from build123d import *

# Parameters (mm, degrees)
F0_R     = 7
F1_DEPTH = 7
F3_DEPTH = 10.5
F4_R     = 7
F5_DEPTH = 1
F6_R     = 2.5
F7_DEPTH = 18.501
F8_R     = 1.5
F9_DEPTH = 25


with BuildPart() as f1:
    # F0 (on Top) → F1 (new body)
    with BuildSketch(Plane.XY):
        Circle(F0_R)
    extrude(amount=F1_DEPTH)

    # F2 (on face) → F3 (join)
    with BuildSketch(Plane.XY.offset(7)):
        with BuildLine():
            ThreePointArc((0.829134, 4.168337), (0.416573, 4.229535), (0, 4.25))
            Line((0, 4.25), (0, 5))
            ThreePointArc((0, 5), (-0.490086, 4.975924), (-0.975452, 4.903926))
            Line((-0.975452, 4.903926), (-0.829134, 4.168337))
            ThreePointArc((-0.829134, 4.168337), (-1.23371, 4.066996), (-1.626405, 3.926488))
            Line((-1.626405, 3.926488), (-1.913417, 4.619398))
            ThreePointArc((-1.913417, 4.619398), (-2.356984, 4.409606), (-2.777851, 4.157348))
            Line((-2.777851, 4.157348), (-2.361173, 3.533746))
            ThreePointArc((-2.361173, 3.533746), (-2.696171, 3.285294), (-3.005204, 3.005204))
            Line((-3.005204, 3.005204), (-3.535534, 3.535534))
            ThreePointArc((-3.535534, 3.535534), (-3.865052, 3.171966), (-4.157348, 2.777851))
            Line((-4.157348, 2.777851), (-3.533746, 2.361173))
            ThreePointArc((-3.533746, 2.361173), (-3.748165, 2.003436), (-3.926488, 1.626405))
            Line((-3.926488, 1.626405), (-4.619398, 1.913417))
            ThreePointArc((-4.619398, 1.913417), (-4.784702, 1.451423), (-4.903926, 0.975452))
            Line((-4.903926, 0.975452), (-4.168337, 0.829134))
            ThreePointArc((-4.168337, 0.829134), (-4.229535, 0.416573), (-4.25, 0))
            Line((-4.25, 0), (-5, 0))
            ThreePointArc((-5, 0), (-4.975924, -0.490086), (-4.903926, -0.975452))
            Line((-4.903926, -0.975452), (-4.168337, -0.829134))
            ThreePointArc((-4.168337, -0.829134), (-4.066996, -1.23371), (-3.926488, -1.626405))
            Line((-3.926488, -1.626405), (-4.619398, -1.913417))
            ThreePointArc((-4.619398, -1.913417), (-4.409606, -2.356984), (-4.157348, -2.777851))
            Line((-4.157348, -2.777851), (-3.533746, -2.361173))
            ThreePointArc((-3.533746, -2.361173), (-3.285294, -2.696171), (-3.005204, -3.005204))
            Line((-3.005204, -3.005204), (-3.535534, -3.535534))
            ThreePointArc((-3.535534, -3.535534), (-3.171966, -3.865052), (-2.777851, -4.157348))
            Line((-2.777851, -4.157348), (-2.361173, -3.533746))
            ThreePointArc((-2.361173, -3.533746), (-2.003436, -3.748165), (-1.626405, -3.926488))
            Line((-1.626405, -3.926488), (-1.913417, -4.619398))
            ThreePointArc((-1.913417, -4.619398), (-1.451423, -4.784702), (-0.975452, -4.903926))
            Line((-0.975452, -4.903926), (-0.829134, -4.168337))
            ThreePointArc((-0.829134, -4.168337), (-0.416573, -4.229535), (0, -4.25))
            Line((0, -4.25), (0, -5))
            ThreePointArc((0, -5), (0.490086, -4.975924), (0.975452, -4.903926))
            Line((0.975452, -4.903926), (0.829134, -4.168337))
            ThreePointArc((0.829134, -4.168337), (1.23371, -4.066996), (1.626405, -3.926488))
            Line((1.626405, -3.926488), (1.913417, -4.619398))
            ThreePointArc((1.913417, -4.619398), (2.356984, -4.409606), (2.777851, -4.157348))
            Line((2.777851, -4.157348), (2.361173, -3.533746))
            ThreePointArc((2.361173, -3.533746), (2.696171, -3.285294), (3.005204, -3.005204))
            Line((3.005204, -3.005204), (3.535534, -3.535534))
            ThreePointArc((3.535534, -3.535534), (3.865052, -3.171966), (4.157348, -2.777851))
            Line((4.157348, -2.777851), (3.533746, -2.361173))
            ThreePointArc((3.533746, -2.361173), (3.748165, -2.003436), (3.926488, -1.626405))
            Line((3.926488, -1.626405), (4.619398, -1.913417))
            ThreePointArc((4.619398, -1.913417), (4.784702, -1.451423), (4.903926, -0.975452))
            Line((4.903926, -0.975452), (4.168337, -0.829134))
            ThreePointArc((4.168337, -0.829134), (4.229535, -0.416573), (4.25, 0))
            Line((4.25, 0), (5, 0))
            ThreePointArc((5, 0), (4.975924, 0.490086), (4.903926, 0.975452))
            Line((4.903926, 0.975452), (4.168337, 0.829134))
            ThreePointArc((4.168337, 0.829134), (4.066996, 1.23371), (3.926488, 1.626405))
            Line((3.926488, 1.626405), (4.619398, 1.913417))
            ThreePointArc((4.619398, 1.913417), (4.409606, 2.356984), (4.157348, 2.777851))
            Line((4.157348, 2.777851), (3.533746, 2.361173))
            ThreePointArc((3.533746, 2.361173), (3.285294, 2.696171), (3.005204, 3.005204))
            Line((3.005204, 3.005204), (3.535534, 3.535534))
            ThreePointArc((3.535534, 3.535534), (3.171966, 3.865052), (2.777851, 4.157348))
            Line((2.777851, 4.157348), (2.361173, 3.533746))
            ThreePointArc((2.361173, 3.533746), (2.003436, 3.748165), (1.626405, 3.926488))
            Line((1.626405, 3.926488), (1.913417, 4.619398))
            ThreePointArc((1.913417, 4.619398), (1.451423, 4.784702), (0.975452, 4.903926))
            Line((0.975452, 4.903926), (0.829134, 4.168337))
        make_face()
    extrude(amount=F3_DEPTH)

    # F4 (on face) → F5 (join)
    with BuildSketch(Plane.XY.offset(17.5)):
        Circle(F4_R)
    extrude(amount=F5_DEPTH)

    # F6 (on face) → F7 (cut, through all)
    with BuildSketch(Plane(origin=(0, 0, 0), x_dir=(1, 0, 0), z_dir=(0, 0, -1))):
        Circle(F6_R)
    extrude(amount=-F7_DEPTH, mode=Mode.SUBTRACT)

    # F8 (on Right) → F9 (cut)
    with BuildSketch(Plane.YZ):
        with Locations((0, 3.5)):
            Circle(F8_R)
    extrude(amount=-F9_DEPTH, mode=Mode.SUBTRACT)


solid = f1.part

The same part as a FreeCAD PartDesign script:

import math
import FreeCAD as App
import Part
import Sketcher
Q = App.Units.Quantity

doc = App.newDocument("Part")
body = doc.addObject("PartDesign::Body", "Body")

# Sketch on XY plane
sketch1 = body.newObject("Sketcher::SketchObject", "Sketch")
sketch1.AttachmentSupport = (doc.getObject("XY_Plane"), [""])
sketch1.MapMode = "FlatFace"
sketch1.addGeometry(Part.Circle(App.Vector(0, 0, 0), App.Vector(0, 0, 1), 7), False)
sketch1.addConstraint([
    Sketcher.Constraint("Coincident", 0, 3, -1, 1),
    Sketcher.Constraint("Diameter", 0, 14.0),
])
pad1 = body.newObject("PartDesign::Pad", "Pad")
pad1.Profile = sketch1
pad1.Length = 7

# Sketch on XY plane
sketch2 = body.newObject("Sketcher::SketchObject", "Sketch001")
sketch2.AttachmentSupport = (doc.getObject("XY_Plane"), [""])
sketch2.MapMode = "FlatFace"
sketch2.AttachmentOffset = App.Placement(App.Vector(0, 0, 7), App.Rotation())
sketch2.addGeometry([
    Part.ArcOfCircle(Part.Circle(App.Vector(0.000001, 0.000027, 0), App.Vector(0, 0, 1), 4.249973), math.radians(78.749933), math.radians(90.000008)),  # 0
    Part.LineSegment(App.Vector(0, 4.25, 0), App.Vector(0, 5, 0)),  # 1
    Part.ArcOfCircle(Part.Circle(App.Vector(-0.00001, 0.000114, 0), App.Vector(0, 0, 1), 4.999886), math.radians(89.999889), math.radians(101.250153)),  # 2
    Part.LineSegment(App.Vector(-0.975452, 4.903926, 0), App.Vector(-0.829134, 4.168337, 0)),  # 3
    Part.ArcOfCircle(Part.Circle(App.Vector(0.000012, -0.000049, 0), App.Vector(0, 0, 1), 4.25005), math.radians(101.250031), math.radians(112.499901)),  # 4
    Part.LineSegment(App.Vector(-1.626405, 3.926488, 0), App.Vector(-1.913417, 4.619398, 0)),  # 5
    Part.ArcOfCircle(Part.Circle(App.Vector(0.00002, -0.000034, 0), App.Vector(0, 0, 1), 5.000039), math.radians(112.500064), math.radians(123.749978)),  # 6
    Part.LineSegment(App.Vector(-2.777851, 4.157348, 0), App.Vector(-2.361173, 3.533746, 0)),  # 7
    Part.ArcOfCircle(Part.Circle(App.Vector(0.000087, -0.000109, 0), App.Vector(0, 0, 1), 4.250139), math.radians(123.75015), math.radians(134.999788)),  # 8
    Part.LineSegment(App.Vector(-3.005204, 3.005204, 0), App.Vector(-3.535534, 3.535534, 0)),  # 9
    Part.ArcOfCircle(Part.Circle(App.Vector(0.000076, -0.000061, 0), App.Vector(0, 0, 1), 5.000097), math.radians(135.000125), math.radians(146.249908)),  # 10
    Part.LineSegment(App.Vector(-4.157348, 2.777851, 0), App.Vector(-3.533746, 2.361173, 0)),  # 11
    Part.ArcOfCircle(Part.Circle(App.Vector(0.000071, -0.000039, 0), App.Vector(0, 0, 1), 4.25008), math.radians(146.250093), math.radians(157.499868)),  # 12
    Part.LineSegment(App.Vector(-3.926488, 1.626405, 0), App.Vector(-4.619398, 1.913417, 0)),  # 13
    Part.ArcOfCircle(Part.Circle(App.Vector(-0.000045, 0.000017, 0), App.Vector(0, 0, 1), 4.999953), math.radians(157.499983), math.radians(168.750081)),  # 14
    Part.LineSegment(App.Vector(-4.903926, 0.975452, 0), App.Vector(-4.168337, 0.829134, 0)),  # 15
    Part.ArcOfCircle(Part.Circle(App.Vector(-0.000027, 0.000001, 0), App.Vector(0, 0, 1), 4.249973), math.radians(168.749933), math.radians(180.000008)),  # 16
    Part.LineSegment(App.Vector(-4.25, 0, 0), App.Vector(-5, 0, 0)),  # 17
    Part.ArcOfCircle(Part.Circle(App.Vector(-0.000114, -0.00001, 0), App.Vector(0, 0, 1), 4.999886), math.radians(179.999889), math.radians(191.250153)),  # 18
    Part.LineSegment(App.Vector(-4.903926, -0.975452, 0), App.Vector(-4.168337, -0.829134, 0)),  # 19
    Part.ArcOfCircle(Part.Circle(App.Vector(0.000049, 0.000012, 0), App.Vector(0, 0, 1), 4.25005), math.radians(-168.749969), math.radians(-157.500099)),  # 20
    Part.LineSegment(App.Vector(-3.926488, -1.626405, 0), App.Vector(-4.619398, -1.913417, 0)),  # 21
    Part.ArcOfCircle(Part.Circle(App.Vector(0.000034, 0.00002, 0), App.Vector(0, 0, 1), 5.000039), math.radians(-157.499936), math.radians(-146.250022)),  # 22
    Part.LineSegment(App.Vector(-4.157348, -2.777851, 0), App.Vector(-3.533746, -2.361173, 0)),  # 23
    Part.ArcOfCircle(Part.Circle(App.Vector(0.000109, 0.000087, 0), App.Vector(0, 0, 1), 4.250139), math.radians(-146.24985), math.radians(-135.000212)),  # 24
    Part.LineSegment(App.Vector(-3.005204, -3.005204, 0), App.Vector(-3.535534, -3.535534, 0)),  # 25
    Part.ArcOfCircle(Part.Circle(App.Vector(0.000061, 0.000076, 0), App.Vector(0, 0, 1), 5.000097), math.radians(-134.999875), math.radians(-123.750092)),  # 26
    Part.LineSegment(App.Vector(-2.777851, -4.157348, 0), App.Vector(-2.361173, -3.533746, 0)),  # 27
    Part.ArcOfCircle(Part.Circle(App.Vector(0.000039, 0.000071, 0), App.Vector(0, 0, 1), 4.25008), math.radians(-123.749907), math.radians(-112.500132)),  # 28
    Part.LineSegment(App.Vector(-1.626405, -3.926488, 0), App.Vector(-1.913417, -4.619398, 0)),  # 29
    Part.ArcOfCircle(Part.Circle(App.Vector(-0.000017, -0.000045, 0), App.Vector(0, 0, 1), 4.999953), math.radians(-112.500017), math.radians(-101.249919)),  # 30
    Part.LineSegment(App.Vector(-0.975452, -4.903926, 0), App.Vector(-0.829134, -4.168337, 0)),  # 31
    Part.ArcOfCircle(Part.Circle(App.Vector(-0.000001, -0.000027, 0), App.Vector(0, 0, 1), 4.249973), math.radians(-101.250067), math.radians(-89.999992)),  # 32
    Part.LineSegment(App.Vector(0, -4.25, 0), App.Vector(0, -5, 0)),  # 33
    Part.ArcOfCircle(Part.Circle(App.Vector(0.00001, -0.000114, 0), App.Vector(0, 0, 1), 4.999886), math.radians(-90.000111), math.radians(-78.749847)),  # 34
    Part.LineSegment(App.Vector(0.975452, -4.903926, 0), App.Vector(0.829134, -4.168337, 0)),  # 35
    Part.ArcOfCircle(Part.Circle(App.Vector(-0.000012, 0.000049, 0), App.Vector(0, 0, 1), 4.25005), math.radians(-78.749969), math.radians(-67.500099)),  # 36
    Part.LineSegment(App.Vector(1.626405, -3.926488, 0), App.Vector(1.913417, -4.619398, 0)),  # 37
    Part.ArcOfCircle(Part.Circle(App.Vector(-0.00002, 0.000034, 0), App.Vector(0, 0, 1), 5.000039), math.radians(-67.499936), math.radians(-56.250022)),  # 38
    Part.LineSegment(App.Vector(2.777851, -4.157348, 0), App.Vector(2.361173, -3.533746, 0)),  # 39
    Part.ArcOfCircle(Part.Circle(App.Vector(-0.000087, 0.000109, 0), App.Vector(0, 0, 1), 4.250139), math.radians(-56.24985), math.radians(-45.000212)),  # 40
    Part.LineSegment(App.Vector(3.005204, -3.005204, 0), App.Vector(3.535534, -3.535534, 0)),  # 41
    Part.ArcOfCircle(Part.Circle(App.Vector(-0.000076, 0.000061, 0), App.Vector(0, 0, 1), 5.000097), math.radians(-44.999875), math.radians(-33.750092)),  # 42
    Part.LineSegment(App.Vector(4.157348, -2.777851, 0), App.Vector(3.533746, -2.361173, 0)),  # 43
    Part.ArcOfCircle(Part.Circle(App.Vector(-0.000071, 0.000039, 0), App.Vector(0, 0, 1), 4.25008), math.radians(-33.749907), math.radians(-22.500132)),  # 44
    Part.LineSegment(App.Vector(3.926488, -1.626405, 0), App.Vector(4.619398, -1.913417, 0)),  # 45
    Part.ArcOfCircle(Part.Circle(App.Vector(0.000045, -0.000017, 0), App.Vector(0, 0, 1), 4.999953), math.radians(-22.500017), math.radians(-11.249919)),  # 46
    Part.LineSegment(App.Vector(4.903926, -0.975452, 0), App.Vector(4.168337, -0.829134, 0)),  # 47
    Part.ArcOfCircle(Part.Circle(App.Vector(0.000027, -0.000001, 0), App.Vector(0, 0, 1), 4.249973), math.radians(-11.250067), math.radians(0.000008)),  # 48
    Part.LineSegment(App.Vector(4.25, 0, 0), App.Vector(5, 0, 0)),  # 49
    Part.ArcOfCircle(Part.Circle(App.Vector(0.000114, 0.00001, 0), App.Vector(0, 0, 1), 4.999886), math.radians(-0.000111), math.radians(11.250153)),  # 50
    Part.LineSegment(App.Vector(4.903926, 0.975452, 0), App.Vector(4.168337, 0.829134, 0)),  # 51
    Part.ArcOfCircle(Part.Circle(App.Vector(-0.000049, -0.000012, 0), App.Vector(0, 0, 1), 4.25005), math.radians(11.250031), math.radians(22.499901)),  # 52
    Part.LineSegment(App.Vector(3.926488, 1.626405, 0), App.Vector(4.619398, 1.913417, 0)),  # 53
    Part.ArcOfCircle(Part.Circle(App.Vector(-0.000034, -0.00002, 0), App.Vector(0, 0, 1), 5.000039), math.radians(22.500064), math.radians(33.749978)),  # 54
    Part.LineSegment(App.Vector(4.157348, 2.777851, 0), App.Vector(3.533746, 2.361173, 0)),  # 55
    Part.ArcOfCircle(Part.Circle(App.Vector(-0.000109, -0.000087, 0), App.Vector(0, 0, 1), 4.250139), math.radians(33.75015), math.radians(44.999788)),  # 56
    Part.LineSegment(App.Vector(3.005204, 3.005204, 0), App.Vector(3.535534, 3.535534, 0)),  # 57
    Part.ArcOfCircle(Part.Circle(App.Vector(-0.000061, -0.000076, 0), App.Vector(0, 0, 1), 5.000097), math.radians(45.000125), math.radians(56.249908)),  # 58
    Part.LineSegment(App.Vector(2.777851, 4.157348, 0), App.Vector(2.361173, 3.533746, 0)),  # 59
    Part.ArcOfCircle(Part.Circle(App.Vector(-0.000039, -0.000071, 0), App.Vector(0, 0, 1), 4.25008), math.radians(56.250093), math.radians(67.499868)),  # 60
    Part.LineSegment(App.Vector(1.626405, 3.926488, 0), App.Vector(1.913417, 4.619398, 0)),  # 61
    Part.ArcOfCircle(Part.Circle(App.Vector(0.000017, 0.000045, 0), App.Vector(0, 0, 1), 4.999953), math.radians(67.499983), math.radians(78.750081)),  # 62
    Part.LineSegment(App.Vector(0.975452, 4.903926, 0), App.Vector(0.829134, 4.168337, 0)),  # 63
], False)
sketch2.addConstraint([
    Sketcher.Constraint("Coincident", 0, 2, 1, 1),
    Sketcher.Constraint("Coincident", 1, 2, 2, 1),
    Sketcher.Constraint("Coincident", 2, 2, 3, 1),
    Sketcher.Constraint("Coincident", 3, 2, 4, 1),
    Sketcher.Constraint("Coincident", 4, 2, 5, 1),
    Sketcher.Constraint("Coincident", 5, 2, 6, 1),
    Sketcher.Constraint("Coincident", 6, 2, 7, 1),
    Sketcher.Constraint("Coincident", 7, 2, 8, 1),
    Sketcher.Constraint("Coincident", 8, 2, 9, 1),
    Sketcher.Constraint("Coincident", 9, 2, 10, 1),
    Sketcher.Constraint("Coincident", 10, 2, 11, 1),
    Sketcher.Constraint("Coincident", 11, 2, 12, 1),
    Sketcher.Constraint("Coincident", 12, 2, 13, 1),
    Sketcher.Constraint("Coincident", 13, 2, 14, 1),
    Sketcher.Constraint("Coincident", 14, 2, 15, 1),
    Sketcher.Constraint("Coincident", 15, 2, 16, 1),
    Sketcher.Constraint("Coincident", 16, 2, 17, 1),
    Sketcher.Constraint("Coincident", 17, 2, 18, 1),
    Sketcher.Constraint("Coincident", 18, 2, 19, 1),
    Sketcher.Constraint("Coincident", 19, 2, 20, 1),
    Sketcher.Constraint("Coincident", 20, 2, 21, 1),
    Sketcher.Constraint("Coincident", 21, 2, 22, 1),
    Sketcher.Constraint("Coincident", 22, 2, 23, 1),
    Sketcher.Constraint("Coincident", 23, 2, 24, 1),
    Sketcher.Constraint("Coincident", 24, 2, 25, 1),
    Sketcher.Constraint("Coincident", 25, 2, 26, 1),
    Sketcher.Constraint("Coincident", 26, 2, 27, 1),
    Sketcher.Constraint("Coincident", 27, 2, 28, 1),
    Sketcher.Constraint("Coincident", 28, 2, 29, 1),
    Sketcher.Constraint("Coincident", 29, 2, 30, 1),
    Sketcher.Constraint("Coincident", 30, 2, 31, 1),
    Sketcher.Constraint("Coincident", 31, 2, 32, 1),
    Sketcher.Constraint("Coincident", 32, 2, 33, 1),
    Sketcher.Constraint("Coincident", 33, 2, 34, 1),
    Sketcher.Constraint("Coincident", 34, 2, 35, 1),
    Sketcher.Constraint("Coincident", 35, 2, 36, 1),
    Sketcher.Constraint("Coincident", 36, 2, 37, 1),
    Sketcher.Constraint("Coincident", 37, 2, 38, 1),
    Sketcher.Constraint("Coincident", 38, 2, 39, 1),
    Sketcher.Constraint("Coincident", 39, 2, 40, 1),
    Sketcher.Constraint("Coincident", 40, 2, 41, 1),
    Sketcher.Constraint("Coincident", 41, 2, 42, 1),
    Sketcher.Constraint("Coincident", 42, 2, 43, 1),
    Sketcher.Constraint("Coincident", 43, 2, 44, 1),
    Sketcher.Constraint("Coincident", 44, 2, 45, 1),
    Sketcher.Constraint("Coincident", 45, 2, 46, 1),
    Sketcher.Constraint("Coincident", 46, 2, 47, 1),
    Sketcher.Constraint("Coincident", 47, 2, 48, 1),
    Sketcher.Constraint("Coincident", 48, 2, 49, 1),
    Sketcher.Constraint("Coincident", 49, 2, 50, 1),
    Sketcher.Constraint("Coincident", 50, 2, 51, 1),
    Sketcher.Constraint("Coincident", 51, 2, 52, 1),
    Sketcher.Constraint("Coincident", 52, 2, 53, 1),
    Sketcher.Constraint("Coincident", 53, 2, 54, 1),
    Sketcher.Constraint("Coincident", 54, 2, 55, 1),
    Sketcher.Constraint("Coincident", 55, 2, 56, 1),
    Sketcher.Constraint("Coincident", 56, 2, 57, 1),
    Sketcher.Constraint("Coincident", 57, 2, 58, 1),
    Sketcher.Constraint("Coincident", 58, 2, 59, 1),
    Sketcher.Constraint("Coincident", 59, 2, 60, 1),
    Sketcher.Constraint("Coincident", 60, 2, 61, 1),
    Sketcher.Constraint("Coincident", 61, 2, 62, 1),
    Sketcher.Constraint("Coincident", 62, 2, 63, 1),
    Sketcher.Constraint("Coincident", 63, 2, 0, 1),
    Sketcher.Constraint("Vertical", 1),
    Sketcher.Constraint("Horizontal", 17),
    Sketcher.Constraint("Vertical", 33),
    Sketcher.Constraint("Horizontal", 49),
    Sketcher.Constraint("Equal", 0, 16),
    Sketcher.Constraint("Equal", 2, 18),
    Sketcher.Constraint("Equal", 4, 20),
    Sketcher.Constraint("Equal", 6, 22),
    Sketcher.Constraint("Equal", 8, 24),
    Sketcher.Constraint("Equal", 10, 26),
    Sketcher.Constraint("Equal", 12, 28),
    Sketcher.Constraint("Equal", 14, 30),
    Sketcher.Constraint("Equal", 16, 32),
    Sketcher.Constraint("Equal", 18, 34),
    Sketcher.Constraint("Equal", 20, 36),
    Sketcher.Constraint("Equal", 22, 38),
    Sketcher.Constraint("Equal", 24, 40),
    Sketcher.Constraint("Equal", 26, 42),
    Sketcher.Constraint("Equal", 28, 44),
    Sketcher.Constraint("Equal", 30, 46),
    Sketcher.Constraint("Equal", 32, 48),
    Sketcher.Constraint("Equal", 34, 50),
    Sketcher.Constraint("Equal", 36, 52),
    Sketcher.Constraint("Equal", 38, 54),
    Sketcher.Constraint("Equal", 40, 56),
    Sketcher.Constraint("Equal", 42, 58),
    Sketcher.Constraint("Equal", 44, 60),
    Sketcher.Constraint("Equal", 46, 62),
    Sketcher.Constraint("Symmetric", 0, 3, 32, 3, -1, 1),
    Sketcher.Constraint("Symmetric", 2, 3, 34, 3, -1, 1),
    Sketcher.Constraint("Symmetric", 4, 3, 36, 3, -1, 1),
    Sketcher.Constraint("Symmetric", 6, 3, 38, 3, -1, 1),
    Sketcher.Constraint("Symmetric", 8, 3, 40, 3, -1, 1),
    Sketcher.Constraint("Symmetric", 10, 3, 42, 3, -1, 1),
    Sketcher.Constraint("Symmetric", 12, 3, 44, 3, -1, 1),
    Sketcher.Constraint("Symmetric", 14, 3, 46, 3, -1, 1),
    Sketcher.Constraint("Symmetric", 16, 3, 48, 3, -1, 1),
    Sketcher.Constraint("Symmetric", 18, 3, 50, 3, -1, 1),
    Sketcher.Constraint("Symmetric", 20, 3, 52, 3, -1, 1),
    Sketcher.Constraint("Symmetric", 22, 3, 54, 3, -1, 1),
    Sketcher.Constraint("Symmetric", 24, 3, 56, 3, -1, 1),
    Sketcher.Constraint("Symmetric", 26, 3, 58, 3, -1, 1),
    Sketcher.Constraint("Symmetric", 28, 3, 60, 3, -1, 1),
    Sketcher.Constraint("Symmetric", 30, 3, 62, 3, -1, 1),
    Sketcher.Constraint("Symmetric", 14, 3, 20, 3, -2),
    Sketcher.Constraint("Symmetric", 4, 3, 30, 3, -2),
    Sketcher.Constraint("Symmetric", 30, 2, 34, 2, -2),
    Sketcher.Constraint("Symmetric", 31, 2, 35, 2, -2),
    Sketcher.Constraint("Symmetric", 28, 2, 36, 2, -2),
    Sketcher.Constraint("Symmetric", 29, 2, 37, 2, -2),
    Sketcher.Constraint("Symmetric", 26, 2, 38, 2, -2),
    Sketcher.Constraint("Symmetric", 27, 2, 39, 2, -2),
    Sketcher.Constraint("Symmetric", 24, 2, 40, 2, -2),
    Sketcher.Constraint("Symmetric", 25, 2, 41, 2, -2),
    Sketcher.Constraint("Symmetric", 22, 2, 42, 2, -2),
    Sketcher.Constraint("Symmetric", 23, 2, 43, 2, -2),
    Sketcher.Constraint("Symmetric", 20, 2, 44, 2, -2),
    Sketcher.Constraint("Symmetric", 21, 2, 45, 2, -2),
    Sketcher.Constraint("Symmetric", 18, 2, 46, 2, -2),
    Sketcher.Constraint("Symmetric", 19, 2, 47, 2, -2),
    Sketcher.Constraint("PointOnObject", 0, 3, -2),
    Sketcher.Constraint("PointOnObject", 16, 3, -1),
    Sketcher.Constraint("PointOnObject", 0, 2, -2),
    Sketcher.Constraint("PointOnObject", 16, 2, -1),
    Sketcher.Constraint("PointOnObject", 32, 2, -2),
    Sketcher.Constraint("PointOnObject", 48, 2, -1),
    Sketcher.Constraint("Perpendicular", 3, 19),
    Sketcher.Constraint("Perpendicular", 5, 21),
    Sketcher.Constraint("Perpendicular", 7, 23),
    Sketcher.Constraint("Perpendicular", 9, 25),
    Sketcher.Constraint("Perpendicular", 11, 27),
    Sketcher.Constraint("Perpendicular", 13, 29),
    Sketcher.Constraint("Perpendicular", 15, 31),
    Sketcher.Constraint("Perpendicular", 19, 35),
    Sketcher.Constraint("Perpendicular", 21, 37),
    Sketcher.Constraint("Perpendicular", 23, 39),
    Sketcher.Constraint("Perpendicular", 25, 41),
    Sketcher.Constraint("Perpendicular", 35, 51),
    Sketcher.Constraint("Perpendicular", 37, 53),
    Sketcher.Constraint("Perpendicular", 39, 55),
    Sketcher.Constraint("Perpendicular", 41, 57),
    Sketcher.Constraint("Perpendicular", 43, 59),
    Sketcher.Constraint("Perpendicular", 45, 61),
    Sketcher.Constraint("Perpendicular", 47, 63),
    Sketcher.Constraint("Horizontal", 14, 2, 50, 2),
    Sketcher.Constraint("Horizontal", 12, 2, 52, 2),
    Sketcher.Constraint("Horizontal", 10, 2, 54, 2),
    Sketcher.Constraint("Horizontal", 8, 2, 56, 2),
    Sketcher.Constraint("Horizontal", 6, 2, 58, 2),
    Sketcher.Constraint("Horizontal", 4, 2, 60, 2),
    Sketcher.Constraint("Horizontal", 2, 2, 62, 2),
    Sketcher.Constraint("Vertical", 14, 2, 18, 2),
    Sketcher.Constraint("Vertical", 12, 2, 20, 2),
    Sketcher.Constraint("Vertical", 10, 2, 22, 2),
    Sketcher.Constraint("Vertical", 8, 2, 24, 2),
    Sketcher.Constraint("Vertical", 6, 2, 26, 2),
    Sketcher.Constraint("Vertical", 4, 2, 28, 2),
    Sketcher.Constraint("Vertical", 2, 2, 30, 2),
    Sketcher.Constraint("Equal", 49, 1),
    Sketcher.Constraint("Equal", 3, 5),
    Sketcher.Constraint("Equal", 5, 7),
    Sketcher.Constraint("Equal", 7, 9),
    Sketcher.Constraint("Equal", 9, 11),
    Sketcher.Constraint("Equal", 11, 13),
    Sketcher.Constraint("Equal", 13, 15),
    Sketcher.Constraint("DistanceY", -1, 1, 1, 2, 5.0),
    Sketcher.Constraint("DistanceX", 17, 2, 17, 1, 0.75),
    Sketcher.Constraint("Angle", 3, Q("-78.749981 deg")),
    Sketcher.Constraint("Distance", 3, 0.75),
    Sketcher.Constraint("Radius", 4, 4.25005),
    Sketcher.Constraint("Radius", 6, 5.000039),
    Sketcher.Constraint("Radius", 8, 4.250139),
    Sketcher.Constraint("Radius", 12, 4.25008),
    Sketcher.Constraint("Radius", 0, 4.249973),
    Sketcher.Constraint("Radius", 2, 4.999886),
    Sketcher.Constraint("Radius", 10, 5.000097),
    Sketcher.Constraint("DistanceY", -1, 1, 5, 2, 4.619398),
    Sketcher.Constraint("DistanceX", 13, 2, -1, 1, 4.619398),
    Sketcher.Constraint("DistanceY", 8, 3, -1, 1, 0.000109),
    Sketcher.Constraint("DistanceX", -1, 1, 24, 3, 0.000109),
    Sketcher.Constraint("DistanceX", 6, 2, -1, 1, 2.777851),
    Sketcher.Constraint("DistanceY", -1, 1, 6, 2, 4.157348),
    Sketcher.Constraint("DistanceX", 10, 2, -1, 1, 4.157348),
    Sketcher.Constraint("DistanceX", 12, 2, -1, 1, 3.926488),
    Sketcher.Constraint("DistanceY", -1, 1, 14, 2, 0.975452),
    Sketcher.Constraint("DistanceX", 30, 2, -1, 1, 0.975452),
    Sketcher.Constraint("DistanceX", 7, 2, -1, 1, 2.361173),
    Sketcher.Constraint("DistanceX", 8, 2, -1, 1, 3.005204),
])
pad2 = body.newObject("PartDesign::Pad", "Pad001")
pad2.Profile = sketch2
pad2.Length = 10.5

# Sketch on XY plane
sketch3 = body.newObject("Sketcher::SketchObject", "Sketch002")
sketch3.AttachmentSupport = (doc.getObject("XY_Plane"), [""])
sketch3.MapMode = "FlatFace"
sketch3.AttachmentOffset = App.Placement(App.Vector(0, 0, 17.5), App.Rotation())
sketch3.addGeometry(Part.Circle(App.Vector(0, 0, 0), App.Vector(0, 0, 1), 7), False)
sketch3.addConstraint([
    Sketcher.Constraint("Coincident", 0, 3, -1, 1),
    Sketcher.Constraint("Diameter", 0, 14.0),
])
pad3 = body.newObject("PartDesign::Pad", "Pad002")
pad3.Profile = sketch3
pad3.Length = 1

# Sketch on XY plane
sketch4 = body.newObject("Sketcher::SketchObject", "Sketch003")
sketch4.AttachmentSupport = (doc.getObject("XY_Plane"), [""])
sketch4.MapMode = "FlatFace"
sketch4.addGeometry(Part.Circle(App.Vector(0, 0, 0), App.Vector(0, 0, 1), 2.5), False)
sketch4.addConstraint([
    Sketcher.Constraint("Coincident", 0, 3, -1, 1),
    Sketcher.Constraint("Diameter", 0, 5.0),
])
pocket1 = body.newObject("PartDesign::Pocket", "Pocket")
pocket1.Profile = sketch4
pocket1.Type = "ThroughAll"
pocket1.Reversed = True

# Sketch on YZ plane
sketch5 = body.newObject("Sketcher::SketchObject", "Sketch004")
sketch5.AttachmentSupport = (doc.getObject("YZ_Plane"), [""])
sketch5.MapMode = "FlatFace"
sketch5.addGeometry(Part.Circle(App.Vector(0, 3.5, 0), App.Vector(0, 0, 1), 1.5), False)
sketch5.addConstraint([
    Sketcher.Constraint("PointOnObject", 0, 3, -2),
    Sketcher.Constraint("Diameter", 0, 3.0),
    Sketcher.Constraint("DistanceY", -1, 1, 0, 3, 3.5),
])
pocket2 = body.newObject("PartDesign::Pocket", "Pocket001")
pocket2.Profile = sketch5
pocket2.Length = 25

doc.recompute()
